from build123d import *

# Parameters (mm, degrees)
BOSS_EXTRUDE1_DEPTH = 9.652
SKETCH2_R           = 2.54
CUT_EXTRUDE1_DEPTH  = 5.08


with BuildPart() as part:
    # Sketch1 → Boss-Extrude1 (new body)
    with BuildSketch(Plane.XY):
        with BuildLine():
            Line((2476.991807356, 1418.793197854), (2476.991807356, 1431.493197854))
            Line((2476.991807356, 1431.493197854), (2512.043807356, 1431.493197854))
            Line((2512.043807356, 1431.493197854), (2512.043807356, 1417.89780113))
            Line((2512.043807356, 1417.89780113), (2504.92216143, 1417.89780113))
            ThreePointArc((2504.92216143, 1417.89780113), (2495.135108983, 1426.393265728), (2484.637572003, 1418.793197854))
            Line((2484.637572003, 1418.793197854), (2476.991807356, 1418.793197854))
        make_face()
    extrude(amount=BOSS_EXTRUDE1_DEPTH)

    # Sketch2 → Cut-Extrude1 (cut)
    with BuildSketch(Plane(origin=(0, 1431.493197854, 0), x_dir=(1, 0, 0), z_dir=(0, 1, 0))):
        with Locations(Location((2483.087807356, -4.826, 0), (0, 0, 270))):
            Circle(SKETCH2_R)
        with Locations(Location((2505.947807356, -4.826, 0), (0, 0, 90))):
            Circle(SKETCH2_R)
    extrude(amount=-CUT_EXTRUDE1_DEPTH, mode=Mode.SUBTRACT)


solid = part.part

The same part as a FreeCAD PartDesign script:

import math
import FreeCAD as App
import Part
import Sketcher

V = App.Vector
Q = App.Units.Quantity

doc = App.newDocument("Part")
body = doc.addObject("PartDesign::Body", "Body")

sketch1 = doc.addObject("Sketcher::SketchObject", "Sketch")
body.addObject(sketch1)
sketch1.AttachmentSupport = (doc.XY_Plane, [""])
sketch1.MapMode = "FlatFace"
sketch1.addGeometry([
    Part.LineSegment(V(2476.991807, 1431.493198, 0), V(2476.991807, 1418.793198, 0)),
    Part.LineSegment(V(2476.991807, 1418.793198, 0), V(2484.637572, 1418.793198, 0)),
    Part.ArcOfCircle(Part.Circle(V(2494.675379, 1415.978408, 0), V(0, 0, 1), 10.425), math.radians(10.609509), math.radians(164.335504)),
    Part.LineSegment(V(2504.922161, 1417.897801, 0), V(2512.043807, 1417.897801, 0)),
    Part.LineSegment(V(2512.043807, 1417.897801, 0), V(2512.043807, 1431.493198, 0)),
    Part.LineSegment(V(2512.043807, 1431.493198, 0), V(2476.991807, 1431.493198, 0)),
], False)
sketch1.addConstraint([
    Sketcher.Constraint("Coincident", 0, 2, 1, 1),
    Sketcher.Constraint("Coincident", 1, 2, 2, 2),
    Sketcher.Constraint("Coincident", 2, 1, 3, 1),
    Sketcher.Constraint("Coincident", 3, 2, 4, 1),
    Sketcher.Constraint("Coincident", 4, 2, 5, 1),
    Sketcher.Constraint("Coincident", 5, 2, 0, 1),
    Sketcher.Constraint("Vertical", 0),
    Sketcher.Constraint("Horizontal", 1),
    Sketcher.Constraint("Horizontal", 3),
    Sketcher.Constraint("Vertical", 4),
    Sketcher.Constraint("Horizontal", 5),
    Sketcher.Constraint("DistanceY", 0, 2, 0, 1, Q("0.5 in")),
    Sketcher.Constraint("DistanceX", 5, 2, 5, 1, Q("1.38 in")),
    Sketcher.Constraint("Radius", 2, 10.425),
    Sketcher.Constraint("DistanceY", -1, 1, 0, 2, Q("55.8579999 in")),
    Sketcher.Constraint("DistanceY", -1, 1, 2, 1, 1417.897801),
    Sketcher.Constraint("DistanceX", 1, 1, 1, 2, 7.645765),
    Sketcher.Constraint("DistanceX", 3, 1, 3, 2, 7.121646),
    Sketcher.Constraint("DistanceX", -1, 1, 2, 3, 2494.675379),
])
pad1 = doc.addObject("PartDesign::Pad", "Pad")
body.addObject(pad1)
pad1.Profile = sketch1
pad1.Length = Q("0.38 in")

sketch2 = doc.addObject("Sketcher::SketchObject", "Sketch001")
body.addObject(sketch2)
sketch2.AttachmentSupport = (doc.XZ_Plane, [""])
sketch2.MapMode = "FlatFace"
sketch2.AttachmentOffset = App.Placement(V(0, 0, -56.3579999 * 25.4), App.Rotation())
sketch2.addGeometry([
    Part.Circle(V(2483.087807, 4.826, 0), V(0, 0, 1), 2.54),
    Part.Circle(V(2505.947807, 4.826, 0), V(0, 0, 1), 2.54),
], False)
sketch2.addConstraint([
    Sketcher.Constraint("Equal", 0, 1),
    Sketcher.Constraint("Horizontal", 0, 3, 1, 3),
    Sketcher.Constraint("Diameter", 0, Q("0.2 in")),
    Sketcher.Constraint("DistanceX", 0, 3, 1, 3, Q("0.9 in")),
    Sketcher.Constraint("DistanceY", -1, 1, 0, 3, Q("0.19 in")),
    Sketcher.Constraint("DistanceX", -1, 1, 0, 3, 2483.087807),
])
pocket1 = doc.addObject("PartDesign::Pocket", "Pocket")
body.addObject(pocket1)
pocket1.Profile = sketch2
pocket1.Length = Q("0.2 in")
pocket1.Reversed = True

doc.recompute()
